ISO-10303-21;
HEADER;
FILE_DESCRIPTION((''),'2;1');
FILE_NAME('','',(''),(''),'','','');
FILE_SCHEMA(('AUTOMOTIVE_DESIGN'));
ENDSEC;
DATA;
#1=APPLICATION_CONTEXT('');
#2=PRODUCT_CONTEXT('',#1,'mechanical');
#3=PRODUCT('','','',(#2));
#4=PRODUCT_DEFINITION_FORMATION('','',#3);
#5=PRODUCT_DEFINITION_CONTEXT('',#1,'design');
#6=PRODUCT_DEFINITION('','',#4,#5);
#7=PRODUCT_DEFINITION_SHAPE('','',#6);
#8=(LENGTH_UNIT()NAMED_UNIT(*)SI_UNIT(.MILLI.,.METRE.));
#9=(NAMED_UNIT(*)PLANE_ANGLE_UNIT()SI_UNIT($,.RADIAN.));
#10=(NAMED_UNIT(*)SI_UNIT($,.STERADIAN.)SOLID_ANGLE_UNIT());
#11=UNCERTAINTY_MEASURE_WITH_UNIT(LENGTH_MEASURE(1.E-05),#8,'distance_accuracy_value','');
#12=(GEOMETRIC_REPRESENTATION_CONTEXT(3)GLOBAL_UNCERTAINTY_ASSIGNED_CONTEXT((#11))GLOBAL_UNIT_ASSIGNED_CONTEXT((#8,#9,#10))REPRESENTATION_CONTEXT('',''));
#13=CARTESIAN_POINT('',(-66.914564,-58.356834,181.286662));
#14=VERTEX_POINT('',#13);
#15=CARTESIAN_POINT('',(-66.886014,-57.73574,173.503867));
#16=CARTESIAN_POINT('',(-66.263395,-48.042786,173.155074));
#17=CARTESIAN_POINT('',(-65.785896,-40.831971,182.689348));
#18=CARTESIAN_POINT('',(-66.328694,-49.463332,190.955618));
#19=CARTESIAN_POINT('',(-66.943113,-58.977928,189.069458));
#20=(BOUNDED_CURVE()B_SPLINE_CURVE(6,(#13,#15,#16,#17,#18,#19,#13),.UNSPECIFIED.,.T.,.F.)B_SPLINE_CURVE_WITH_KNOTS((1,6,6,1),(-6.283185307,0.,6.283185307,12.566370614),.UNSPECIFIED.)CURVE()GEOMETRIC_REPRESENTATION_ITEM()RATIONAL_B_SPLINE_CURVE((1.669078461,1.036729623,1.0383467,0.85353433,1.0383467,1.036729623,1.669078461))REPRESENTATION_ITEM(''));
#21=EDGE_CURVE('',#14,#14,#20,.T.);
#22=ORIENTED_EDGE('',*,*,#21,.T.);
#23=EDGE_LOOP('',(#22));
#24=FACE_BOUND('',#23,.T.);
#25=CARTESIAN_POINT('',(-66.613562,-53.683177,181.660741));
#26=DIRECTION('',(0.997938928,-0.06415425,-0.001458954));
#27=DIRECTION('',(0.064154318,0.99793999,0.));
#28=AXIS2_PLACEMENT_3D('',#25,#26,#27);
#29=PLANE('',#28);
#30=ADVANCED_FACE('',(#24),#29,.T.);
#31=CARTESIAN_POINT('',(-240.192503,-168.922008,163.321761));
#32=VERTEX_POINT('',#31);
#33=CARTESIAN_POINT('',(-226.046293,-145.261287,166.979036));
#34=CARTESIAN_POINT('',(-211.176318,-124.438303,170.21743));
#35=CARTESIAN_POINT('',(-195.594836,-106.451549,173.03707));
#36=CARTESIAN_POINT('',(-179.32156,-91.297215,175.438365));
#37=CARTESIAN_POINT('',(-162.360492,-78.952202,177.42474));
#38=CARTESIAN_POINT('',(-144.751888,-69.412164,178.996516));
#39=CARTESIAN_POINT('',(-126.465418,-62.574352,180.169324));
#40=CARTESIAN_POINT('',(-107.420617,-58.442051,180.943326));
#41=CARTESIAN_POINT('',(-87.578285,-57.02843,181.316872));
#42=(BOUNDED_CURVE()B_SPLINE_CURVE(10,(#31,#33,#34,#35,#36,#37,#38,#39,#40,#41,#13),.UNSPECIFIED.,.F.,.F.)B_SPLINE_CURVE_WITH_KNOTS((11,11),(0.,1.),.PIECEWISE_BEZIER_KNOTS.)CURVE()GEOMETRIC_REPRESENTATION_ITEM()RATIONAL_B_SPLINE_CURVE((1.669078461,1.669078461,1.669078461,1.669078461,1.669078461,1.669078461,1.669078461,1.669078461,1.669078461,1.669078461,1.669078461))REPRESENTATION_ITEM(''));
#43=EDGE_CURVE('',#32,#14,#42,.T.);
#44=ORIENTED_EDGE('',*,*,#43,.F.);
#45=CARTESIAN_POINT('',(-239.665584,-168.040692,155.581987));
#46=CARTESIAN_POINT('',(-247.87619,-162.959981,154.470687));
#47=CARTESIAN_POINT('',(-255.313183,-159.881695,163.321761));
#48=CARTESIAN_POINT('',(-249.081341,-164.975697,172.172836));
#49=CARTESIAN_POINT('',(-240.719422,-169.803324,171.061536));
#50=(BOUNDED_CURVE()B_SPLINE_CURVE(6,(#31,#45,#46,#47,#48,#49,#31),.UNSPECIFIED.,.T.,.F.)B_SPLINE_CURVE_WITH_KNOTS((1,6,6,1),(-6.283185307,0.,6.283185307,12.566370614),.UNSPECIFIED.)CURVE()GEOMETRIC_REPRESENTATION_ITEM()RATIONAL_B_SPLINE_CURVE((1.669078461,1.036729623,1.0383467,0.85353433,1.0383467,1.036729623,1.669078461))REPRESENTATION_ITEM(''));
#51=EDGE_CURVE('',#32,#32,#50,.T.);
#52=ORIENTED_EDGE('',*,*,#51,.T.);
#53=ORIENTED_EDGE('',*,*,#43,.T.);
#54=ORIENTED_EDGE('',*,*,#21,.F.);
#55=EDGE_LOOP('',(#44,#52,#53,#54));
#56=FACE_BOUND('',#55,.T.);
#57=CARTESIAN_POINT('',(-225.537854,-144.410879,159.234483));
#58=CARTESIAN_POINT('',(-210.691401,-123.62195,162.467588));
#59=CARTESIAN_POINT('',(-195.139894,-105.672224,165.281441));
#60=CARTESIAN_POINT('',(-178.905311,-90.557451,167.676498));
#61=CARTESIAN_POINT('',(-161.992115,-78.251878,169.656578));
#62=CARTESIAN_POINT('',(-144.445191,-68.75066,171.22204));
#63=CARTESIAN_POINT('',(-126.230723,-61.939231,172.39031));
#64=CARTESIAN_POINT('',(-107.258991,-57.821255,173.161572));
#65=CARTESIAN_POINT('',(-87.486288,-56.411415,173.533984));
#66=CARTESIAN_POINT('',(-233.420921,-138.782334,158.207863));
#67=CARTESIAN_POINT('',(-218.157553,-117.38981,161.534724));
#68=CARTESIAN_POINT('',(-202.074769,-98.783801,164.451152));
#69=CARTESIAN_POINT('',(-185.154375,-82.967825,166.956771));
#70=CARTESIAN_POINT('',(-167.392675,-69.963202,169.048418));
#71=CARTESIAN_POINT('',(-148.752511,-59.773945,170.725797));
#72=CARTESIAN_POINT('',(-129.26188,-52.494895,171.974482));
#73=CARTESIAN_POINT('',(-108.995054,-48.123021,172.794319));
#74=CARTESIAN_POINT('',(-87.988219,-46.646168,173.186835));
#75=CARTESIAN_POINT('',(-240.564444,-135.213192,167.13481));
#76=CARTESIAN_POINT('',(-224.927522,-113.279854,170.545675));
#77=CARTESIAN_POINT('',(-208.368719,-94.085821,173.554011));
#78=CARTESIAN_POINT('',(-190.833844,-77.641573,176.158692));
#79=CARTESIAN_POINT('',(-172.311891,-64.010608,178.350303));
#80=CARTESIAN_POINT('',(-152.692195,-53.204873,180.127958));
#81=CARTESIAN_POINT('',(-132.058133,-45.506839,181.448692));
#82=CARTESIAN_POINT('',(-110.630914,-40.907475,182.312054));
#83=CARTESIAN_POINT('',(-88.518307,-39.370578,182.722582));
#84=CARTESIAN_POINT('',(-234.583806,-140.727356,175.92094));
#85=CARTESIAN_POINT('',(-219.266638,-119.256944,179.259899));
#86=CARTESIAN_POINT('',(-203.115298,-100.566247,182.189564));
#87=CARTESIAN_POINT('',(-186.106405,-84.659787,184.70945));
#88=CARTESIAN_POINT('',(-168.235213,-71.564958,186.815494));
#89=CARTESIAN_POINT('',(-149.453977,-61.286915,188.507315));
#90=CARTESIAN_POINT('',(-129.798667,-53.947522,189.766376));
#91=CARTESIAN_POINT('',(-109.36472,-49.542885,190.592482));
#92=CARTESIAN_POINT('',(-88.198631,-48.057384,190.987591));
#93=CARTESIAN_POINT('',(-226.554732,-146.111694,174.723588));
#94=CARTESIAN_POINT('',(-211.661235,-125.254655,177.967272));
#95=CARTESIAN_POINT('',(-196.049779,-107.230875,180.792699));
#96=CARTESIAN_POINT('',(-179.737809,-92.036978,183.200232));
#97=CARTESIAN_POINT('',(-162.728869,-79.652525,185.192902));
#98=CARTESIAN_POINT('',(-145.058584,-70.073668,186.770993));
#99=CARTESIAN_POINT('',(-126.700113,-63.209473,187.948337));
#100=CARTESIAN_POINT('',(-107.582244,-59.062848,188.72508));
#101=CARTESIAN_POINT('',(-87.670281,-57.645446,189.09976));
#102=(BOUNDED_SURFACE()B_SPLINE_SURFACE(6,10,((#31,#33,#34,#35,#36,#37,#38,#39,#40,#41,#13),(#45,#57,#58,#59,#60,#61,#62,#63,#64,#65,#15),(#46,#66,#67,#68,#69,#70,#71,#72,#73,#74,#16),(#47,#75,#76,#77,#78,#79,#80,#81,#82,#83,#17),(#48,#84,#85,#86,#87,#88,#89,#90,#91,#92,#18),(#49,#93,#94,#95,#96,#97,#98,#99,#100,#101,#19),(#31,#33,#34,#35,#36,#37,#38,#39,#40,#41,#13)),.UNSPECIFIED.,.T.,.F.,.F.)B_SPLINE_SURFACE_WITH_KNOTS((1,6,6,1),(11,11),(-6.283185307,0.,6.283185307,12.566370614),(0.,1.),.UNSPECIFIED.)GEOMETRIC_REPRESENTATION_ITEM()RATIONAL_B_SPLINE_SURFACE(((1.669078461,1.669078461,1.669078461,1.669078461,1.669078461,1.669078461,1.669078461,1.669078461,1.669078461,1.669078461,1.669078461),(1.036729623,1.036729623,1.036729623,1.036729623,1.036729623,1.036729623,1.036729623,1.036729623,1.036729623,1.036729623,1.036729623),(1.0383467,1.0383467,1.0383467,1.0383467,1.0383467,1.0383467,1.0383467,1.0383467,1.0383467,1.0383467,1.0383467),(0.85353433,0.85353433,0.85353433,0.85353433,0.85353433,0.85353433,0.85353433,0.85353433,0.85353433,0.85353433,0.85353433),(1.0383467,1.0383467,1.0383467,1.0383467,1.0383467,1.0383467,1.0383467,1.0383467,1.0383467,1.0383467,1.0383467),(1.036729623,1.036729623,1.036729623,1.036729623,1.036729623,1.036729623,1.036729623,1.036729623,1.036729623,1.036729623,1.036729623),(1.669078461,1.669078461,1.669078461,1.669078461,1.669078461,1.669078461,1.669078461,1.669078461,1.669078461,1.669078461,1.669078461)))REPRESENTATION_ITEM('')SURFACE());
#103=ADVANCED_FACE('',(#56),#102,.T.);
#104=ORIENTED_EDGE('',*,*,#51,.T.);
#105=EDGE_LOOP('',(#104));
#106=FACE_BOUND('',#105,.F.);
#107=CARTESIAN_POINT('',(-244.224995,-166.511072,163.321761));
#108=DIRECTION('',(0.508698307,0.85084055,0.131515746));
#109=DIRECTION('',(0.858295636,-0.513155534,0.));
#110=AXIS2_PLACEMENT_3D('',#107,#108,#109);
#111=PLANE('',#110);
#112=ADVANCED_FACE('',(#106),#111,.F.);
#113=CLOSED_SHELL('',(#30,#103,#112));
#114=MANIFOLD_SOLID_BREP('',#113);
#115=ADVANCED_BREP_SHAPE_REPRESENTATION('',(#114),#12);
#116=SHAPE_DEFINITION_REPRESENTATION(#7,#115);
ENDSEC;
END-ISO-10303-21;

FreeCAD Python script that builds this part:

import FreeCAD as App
import Part
import Sketcher

V = App.Vector
Q = App.Units.Quantity

doc = App.newDocument("Part")
body = doc.addObject("PartDesign::Body", "Body")

# Sketch on an angled plane
sketch1 = body.newObject("Sketcher::SketchObject", "Sketch")
sketch1.Placement = App.Placement(V(-244.225634, -166.51069, 163.321761), App.Rotation(V(0.858295636, -0.513155534, 0), V(0.067488033, 0.112879391, -0.991314082), V(0.508698307, 0.85084055, 0.131515746), "ZXY"))
sketch1.addGeometry(Part.Circle(V(0, 0, 0), V(0, 0, 1), 4.699), False)
sketch1.addConstraint(Sketcher.Constraint("Coincident", 0, 3, -1, 1))
sketch1.addConstraint(Sketcher.Constraint("Diameter", 0, Q("0.37 in")))

# Sketch on an angled plane
sketch2 = body.newObject("Sketcher::SketchObject", "Sketch001")
sketch2.Placement = App.Placement(V(-1.518472, -27.851528, 186.058741), App.Rotation(V(0, 0.988980975, 0.148042664), V(0.999967428, -0.001194861, 0.007982126), V(0.008071061, 0.148037842, -0.988948763), "ZXY"))
sketch2.addGeometry(Part.BSplineCurve([V(-140.497316, -242.715067, 0), V(-19.430165, -171.178126, 0), V(-26.197359, -65.097163, 0)], [3, 3], [0, 1], False, 2, [1, 1, 1], False), False)
sketch2.addConstraint(Sketcher.Constraint("Block", 0))
doc.recompute()

additivepipe = body.newObject("PartDesign::AdditivePipe", "AdditivePipe")
additivepipe.Profile = sketch1
additivepipe.Spine = (sketch2, ["Edge1"])

doc.recompute()
